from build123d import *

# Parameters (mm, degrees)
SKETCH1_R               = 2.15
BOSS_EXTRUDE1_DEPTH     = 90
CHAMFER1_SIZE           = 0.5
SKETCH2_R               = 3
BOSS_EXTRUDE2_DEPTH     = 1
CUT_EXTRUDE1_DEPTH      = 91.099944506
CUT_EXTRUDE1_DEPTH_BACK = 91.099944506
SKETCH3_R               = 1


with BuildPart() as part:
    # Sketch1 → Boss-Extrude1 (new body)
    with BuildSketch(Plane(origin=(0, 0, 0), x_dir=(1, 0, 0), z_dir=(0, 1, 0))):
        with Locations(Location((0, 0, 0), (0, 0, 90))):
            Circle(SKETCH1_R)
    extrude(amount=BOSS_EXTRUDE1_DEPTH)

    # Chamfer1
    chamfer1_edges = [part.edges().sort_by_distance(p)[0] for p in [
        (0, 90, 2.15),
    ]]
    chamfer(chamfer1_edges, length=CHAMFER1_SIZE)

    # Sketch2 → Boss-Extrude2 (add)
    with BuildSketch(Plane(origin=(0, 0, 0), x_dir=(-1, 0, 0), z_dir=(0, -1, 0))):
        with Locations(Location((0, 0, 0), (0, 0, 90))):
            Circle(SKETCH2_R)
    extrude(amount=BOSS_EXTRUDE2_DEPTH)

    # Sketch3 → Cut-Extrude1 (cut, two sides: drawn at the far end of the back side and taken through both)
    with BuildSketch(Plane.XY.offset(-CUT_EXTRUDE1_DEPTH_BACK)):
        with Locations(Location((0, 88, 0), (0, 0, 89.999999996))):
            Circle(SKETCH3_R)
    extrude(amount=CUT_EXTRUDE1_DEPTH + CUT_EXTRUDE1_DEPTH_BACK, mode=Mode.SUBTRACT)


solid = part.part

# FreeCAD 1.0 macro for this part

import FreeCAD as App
import Part
import Sketcher


def edges_at(feature, points):
    """Names of the edges that pass closest to the given points."""
    edges = feature.Shape.Edges
    near = lambda p: min(range(len(edges)), key=lambda i: edges[i].distToShape(Part.Vertex(*p))[0])
    return sorted({f"Edge{near(p) + 1}" for p in points})

doc = App.newDocument("Part")
params = doc.addObject("Spreadsheet::Sheet", "Params")
for row, (alias, value) in enumerate([
    ("sketch1_diameter", "4.3 mm"),
    ("pad1_length", "90 mm"),
    ("chamfer_size", "0.5 mm"),
    ("sketch2_diameter", "6 mm"),
    ("pad2_length", "1 mm"),
    ("sketch3_diameter", "2 mm"),
], start=1):
    params.set(f"A{row}", alias)
    params.set(f"B{row}", "=" + value)
    params.setAlias(f"B{row}", alias)

body = doc.addObject("PartDesign::Body", "Body")

# Sketch on XZ plane
sketch1 = body.newObject("Sketcher::SketchObject", "Sketch")
sketch1.AttachmentSupport = (doc.getObject("XZ_Plane"), [""])
sketch1.MapMode = "FlatFace"
sketch1.addGeometry(Part.Circle(App.Vector(0, 0, 0), App.Vector(0, 0, 1), 2.1), False)
sketch1.addConstraint(Sketcher.Constraint("Coincident", 0, 3, -1, 1))
sketch1.addConstraint(Sketcher.Constraint("Diameter", 0, 4.3))
sketch1.setExpression("Constraints[1]", "Params.sketch1_diameter")
pad1 = body.newObject("PartDesign::Pad", "Pad")
pad1.Profile = sketch1
pad1.setExpression("Length", "Params.pad1_length")
pad1.Reversed = True
doc.recompute()

chamfer = body.newObject("PartDesign::Chamfer", "Chamfer")
chamfer.Base = (pad1, edges_at(pad1, [(0, 90, 2.15)]))
chamfer.setExpression("Size", "Params.chamfer_size")

# Sketch on XZ plane
sketch2 = body.newObject("Sketcher::SketchObject", "Sketch001")
sketch2.AttachmentSupport = (doc.getObject("XZ_Plane"), [""])
sketch2.MapMode = "FlatFace"
sketch2.addGeometry(Part.Circle(App.Vector(0, 0, 0), App.Vector(0, 0, 1), 3), False)
sketch2.addConstraint(Sketcher.Constraint("Coincident", 0, 3, -1, 1))
sketch2.addConstraint(Sketcher.Constraint("Diameter", 0, 6.0))
sketch2.setExpression("Constraints[1]", "Params.sketch2_diameter")
pad2 = body.newObject("PartDesign::Pad", "Pad001")
pad2.Profile = sketch2
pad2.setExpression("Length", "Params.pad2_length")

# Sketch on XY plane
sketch3 = body.newObject("Sketcher::SketchObject", "Sketch002")
sketch3.AttachmentSupport = (doc.getObject("XY_Plane"), [""])
sketch3.MapMode = "FlatFace"
sketch3.addGeometry(Part.Circle(App.Vector(0, 88, 0), App.Vector(0, 0, 1), 1), False)
sketch3.addConstraint(Sketcher.Constraint("PointOnObject", 0, 3, -2))
sketch3.addConstraint(Sketcher.Constraint("Diameter", 0, 2.0))
sketch3.addConstraint(Sketcher.Constraint("DistanceY", -1, 1, 0, 3, 88.0))
sketch3.setExpression("Constraints[1]", "Params.sketch3_diameter")
pocket1 = body.newObject("PartDesign::Pocket", "Pocket")
pocket1.Profile = sketch3
pocket1.Type = "ThroughAll"
pocket1.Midplane = True

doc.recompute()
